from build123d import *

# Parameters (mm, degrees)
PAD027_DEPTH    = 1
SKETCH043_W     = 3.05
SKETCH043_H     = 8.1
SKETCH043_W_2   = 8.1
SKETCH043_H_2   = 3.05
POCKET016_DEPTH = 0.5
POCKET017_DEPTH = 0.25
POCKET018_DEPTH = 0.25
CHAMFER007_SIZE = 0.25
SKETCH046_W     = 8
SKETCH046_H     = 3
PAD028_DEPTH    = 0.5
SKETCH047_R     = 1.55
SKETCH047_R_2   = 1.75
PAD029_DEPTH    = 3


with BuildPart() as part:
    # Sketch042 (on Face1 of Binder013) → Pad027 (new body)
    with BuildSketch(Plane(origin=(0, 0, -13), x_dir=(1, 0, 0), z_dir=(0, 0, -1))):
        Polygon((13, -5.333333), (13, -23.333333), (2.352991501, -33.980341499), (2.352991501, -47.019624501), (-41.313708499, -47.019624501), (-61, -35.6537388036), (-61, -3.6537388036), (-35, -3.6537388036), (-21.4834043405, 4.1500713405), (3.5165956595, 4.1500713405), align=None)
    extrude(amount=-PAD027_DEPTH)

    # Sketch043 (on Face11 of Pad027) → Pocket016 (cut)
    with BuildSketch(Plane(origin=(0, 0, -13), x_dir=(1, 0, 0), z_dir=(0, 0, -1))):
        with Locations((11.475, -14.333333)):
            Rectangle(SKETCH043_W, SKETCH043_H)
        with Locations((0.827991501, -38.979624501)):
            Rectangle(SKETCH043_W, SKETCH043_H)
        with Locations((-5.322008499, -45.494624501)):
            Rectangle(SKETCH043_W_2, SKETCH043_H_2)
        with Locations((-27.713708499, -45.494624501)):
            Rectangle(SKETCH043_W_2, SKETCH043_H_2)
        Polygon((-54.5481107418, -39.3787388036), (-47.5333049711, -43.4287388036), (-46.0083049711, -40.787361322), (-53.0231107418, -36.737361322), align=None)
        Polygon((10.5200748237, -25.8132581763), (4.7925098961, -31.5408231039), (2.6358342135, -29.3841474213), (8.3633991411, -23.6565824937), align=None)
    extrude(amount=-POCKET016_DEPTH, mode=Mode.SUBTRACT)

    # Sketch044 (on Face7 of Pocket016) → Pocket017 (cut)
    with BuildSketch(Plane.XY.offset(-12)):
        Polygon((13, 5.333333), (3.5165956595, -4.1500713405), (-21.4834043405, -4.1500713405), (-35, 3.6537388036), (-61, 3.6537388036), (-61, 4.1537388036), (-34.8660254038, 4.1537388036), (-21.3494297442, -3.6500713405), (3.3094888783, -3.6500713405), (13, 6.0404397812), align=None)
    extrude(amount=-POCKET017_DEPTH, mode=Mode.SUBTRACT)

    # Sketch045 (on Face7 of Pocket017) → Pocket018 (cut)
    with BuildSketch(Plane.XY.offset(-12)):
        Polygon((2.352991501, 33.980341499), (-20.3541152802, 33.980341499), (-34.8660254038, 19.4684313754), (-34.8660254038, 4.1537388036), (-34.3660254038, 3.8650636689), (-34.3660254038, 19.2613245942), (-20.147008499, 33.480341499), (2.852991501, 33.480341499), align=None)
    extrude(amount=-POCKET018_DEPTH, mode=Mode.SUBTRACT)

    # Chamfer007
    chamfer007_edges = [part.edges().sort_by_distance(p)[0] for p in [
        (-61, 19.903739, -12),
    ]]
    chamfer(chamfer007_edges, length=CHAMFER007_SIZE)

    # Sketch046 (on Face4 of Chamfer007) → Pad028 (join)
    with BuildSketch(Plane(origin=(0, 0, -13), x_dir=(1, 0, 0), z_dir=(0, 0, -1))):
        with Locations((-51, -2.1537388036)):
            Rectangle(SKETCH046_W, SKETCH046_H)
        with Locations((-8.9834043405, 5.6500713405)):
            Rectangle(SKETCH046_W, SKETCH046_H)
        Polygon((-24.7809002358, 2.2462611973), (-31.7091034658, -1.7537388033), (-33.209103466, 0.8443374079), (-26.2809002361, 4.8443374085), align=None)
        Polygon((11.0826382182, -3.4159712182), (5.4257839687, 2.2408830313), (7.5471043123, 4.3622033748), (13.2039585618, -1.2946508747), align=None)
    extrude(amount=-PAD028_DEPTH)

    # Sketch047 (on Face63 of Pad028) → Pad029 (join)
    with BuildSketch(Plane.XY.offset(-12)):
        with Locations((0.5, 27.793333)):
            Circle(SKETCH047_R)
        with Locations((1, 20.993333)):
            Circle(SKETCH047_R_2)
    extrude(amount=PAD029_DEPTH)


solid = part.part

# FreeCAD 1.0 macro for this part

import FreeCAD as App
import Part
import Sketcher
from FreeCAD import Vector
Q = App.Units.Quantity


def edges_at(feature, points):
    """Names of the edges that pass closest to the given points."""
    edges = feature.Shape.Edges
    near = lambda p: min(range(len(edges)), key=lambda i: edges[i].distToShape(Part.Vertex(*p))[0])
    return sorted({f"Edge{near(p) + 1}" for p in points})


def add_polygon(sketch, points):
    """Adds a closed chain of lines whose ends are joined by coincident constraints."""
    first, n = sketch.GeometryCount, len(points)
    for a, b in zip(points, points[1:] + points[:1]):
        sketch.addGeometry(Part.LineSegment(App.Vector(*a, 0), App.Vector(*b, 0)), False)
    for i in range(n):
        sketch.addConstraint(Sketcher.Constraint("Coincident", first + i, 2, first + (i + 1) % n, 1))

doc = App.newDocument("Part")
body = doc.addObject("PartDesign::Body", "Body")

# Sketch on XY plane
sketch1 = body.newObject("Sketcher::SketchObject", "Sketch")
sketch1.AttachmentSupport = (doc.getObject("XY_Plane"), [""])
sketch1.MapMode = "FlatFace"
sketch1.AttachmentOffset = App.Placement(Vector(0, 0, -13), App.Rotation())
add_polygon(sketch1, [(13, 23.333333), (13, 5.333333), (3.516596, -4.150071), (-21.483404, -4.150071), (-35, 3.653739), (-61, 3.653739), (-61, 35.653739), (-41.313708, 47.019625), (2.352992, 47.019625), (2.352992, 33.980341)])  # lines 0-9
sketch1.addConstraint([
    Sketcher.Constraint("Vertical", 0),
    Sketcher.Constraint("Horizontal", 2),
    Sketcher.Constraint("Horizontal", 4),
    Sketcher.Constraint("Vertical", 5),
    Sketcher.Constraint("Horizontal", 7),
    Sketcher.Constraint("Vertical", 8),
    Sketcher.Constraint("Perpendicular", 1, 9),
    Sketcher.Constraint("DistanceX", 2, 2, 2, 1, Q("25 mm")),
    Sketcher.Constraint("DistanceX", 4, 2, 4, 1, Q("26 mm")),
    Sketcher.Constraint("DistanceY", 0, 2, 0, 1, Q("18 mm")),
    Sketcher.Constraint("DistanceY", 5, 1, 5, 2, Q("32 mm")),
    Sketcher.Constraint("Angle", 1, Q("-135 deg")),
    Sketcher.Constraint("Angle", 3, Q("150 deg")),
    Sketcher.Constraint("Angle", 6, Q("30 deg")),
    Sketcher.Constraint("DistanceX", -1, 1, 0, 2, Q("13 mm")),
    Sketcher.Constraint("DistanceX", 3, 2, -1, 1, Q("35 mm")),
    Sketcher.Constraint("DistanceX", 7, 1, 7, 2, Q("43.6667 mm")),
    Sketcher.Constraint("Distance", 1, Q("13.411559 mm")),
    Sketcher.Constraint("Distance", 6, Q("22.731771 mm")),
    Sketcher.Constraint("DistanceY", 1, 2, -1, 1, Q("4.150071 mm")),
])
pad1 = body.newObject("PartDesign::Pad", "Pad")
pad1.Profile = sketch1
pad1.Length = 1

# Sketch on XY plane
sketch2 = body.newObject("Sketcher::SketchObject", "Sketch001")
sketch2.AttachmentSupport = (doc.getObject("XY_Plane"), [""])
sketch2.MapMode = "FlatFace"
sketch2.AttachmentOffset = App.Placement(Vector(0, 0, -13), App.Rotation())
add_polygon(sketch2, [(9.95, 10.283333), (9.95, 18.383333), (13, 18.383333), (13, 10.283333)])  # lines 0-3
add_polygon(sketch2, [(-0.697008, 34.929625), (-0.697008, 43.029625), (2.352992, 43.029625), (2.352992, 34.929625)])  # lines 4-7
add_polygon(sketch2, [(-9.372008, 43.969625), (-9.372008, 47.019625), (-1.272008, 47.019625), (-1.272008, 43.969625)])  # lines 8-11
add_polygon(sketch2, [(-31.763708, 43.969625), (-31.763708, 47.019625), (-23.663708, 47.019625), (-23.663708, 43.969625)])  # lines 12-15
add_polygon(sketch2, [(-54.548111, 39.378739), (-47.533305, 43.428739), (-46.008305, 40.787361), (-53.023111, 36.737361)])  # lines 16-19
add_polygon(sketch2, [(4.79251, 31.540823), (10.520075, 25.813258), (8.363399, 23.656582), (2.635834, 29.384147)])  # lines 20-23
sketch2.addConstraint([
    Sketcher.Constraint("Vertical", 0),
    Sketcher.Constraint("Horizontal", 1),
    Sketcher.Constraint("Vertical", 2),
    Sketcher.Constraint("Horizontal", 3),
    Sketcher.Constraint("Vertical", 4),
    Sketcher.Constraint("Horizontal", 5),
    Sketcher.Constraint("Vertical", 6),
    Sketcher.Constraint("Horizontal", 7),
    Sketcher.Constraint("Vertical", 8),
    Sketcher.Constraint("Horizontal", 9),
    Sketcher.Constraint("Vertical", 10),
    Sketcher.Constraint("Horizontal", 11),
    Sketcher.Constraint("Vertical", 12),
    Sketcher.Constraint("Horizontal", 13),
    Sketcher.Constraint("Vertical", 14),
    Sketcher.Constraint("Horizontal", 15),
    Sketcher.Constraint("Perpendicular", 16, 17),
    Sketcher.Constraint("Perpendicular", 17, 18),
    Sketcher.Constraint("Perpendicular", 18, 19),
    Sketcher.Constraint("Perpendicular", 20, 21),
    Sketcher.Constraint("Perpendicular", 21, 22),
    Sketcher.Constraint("Perpendicular", 22, 23),
    Sketcher.Constraint("Horizontal", 9, 2, 12, 2),
    Sketcher.Constraint("Horizontal", 11, 2, 14, 2),
    Sketcher.Constraint("Equal", 3, 5),
    Sketcher.Constraint("Equal", 11, 13),
    Sketcher.Constraint("Equal", 15, 0),
    Sketcher.Constraint("Equal", 2, 4),
    Sketcher.Constraint("Equal", 7, 8),
    Sketcher.Constraint("Equal", 18, 20),
    Sketcher.Constraint("Equal", 19, 21),
    Sketcher.Constraint("Angle", 16, Q("30 deg")),
    Sketcher.Constraint("Angle", 20, Q("-45 deg")),
    Sketcher.Constraint("DistanceX", 9, 1, 9, 2, Q("8.1 mm")),
    Sketcher.Constraint("DistanceX", -1, 1, 1, 2, Q("13 mm")),
    Sketcher.Constraint("Distance", 16, Q("8.1 mm")),
    Sketcher.Constraint("DistanceX", 1, 1, 1, 2, Q("3.05 mm")),
    Sketcher.Constraint("Distance", 17, Q("3.05 mm")),
    Sketcher.Constraint("DistanceY", 4, 2, 8, 2, Q("3.99 mm")),
    Sketcher.Constraint("DistanceX", 8, 2, 4, 2, Q("8.675 mm")),
    Sketcher.Constraint("DistanceX", -1, 1, 21, 2, Q("8.363399 mm")),
    Sketcher.Constraint("DistanceX", 12, 2, 8, 2, Q("22.3917 mm")),
    Sketcher.Constraint("DistanceY", 23, 2, 6, 2, Q("3.388801 mm")),
    Sketcher.Constraint("DistanceX", 4, 2, -1, 1, Q("0.697008 mm")),
    Sketcher.Constraint("DistanceY", -1, 1, 16, 2, Q("43.428739 mm")),
    Sketcher.Constraint("DistanceX", 18, 2, -1, 1, Q("53.023111 mm")),
    Sketcher.Constraint("DistanceY", -1, 1, 20, 2, Q("25.813258 mm")),
    Sketcher.Constraint("DistanceY", 0, 2, 4, 2, Q("24.646292 mm")),
])
pocket1 = body.newObject("PartDesign::Pocket", "Pocket")
pocket1.Profile = sketch2
pocket1.Length = 0.5
pocket1.Reversed = True

# Sketch on XY plane
sketch3 = body.newObject("Sketcher::SketchObject", "Sketch002")
sketch3.AttachmentSupport = (doc.getObject("XY_Plane"), [""])
sketch3.MapMode = "FlatFace"
sketch3.AttachmentOffset = App.Placement(Vector(0, 0, -12), App.Rotation())
add_polygon(sketch3, [(3.516596, -4.150071), (13, 5.333333), (13, 6.04044), (3.309489, -3.650071), (-21.34943, -3.650071), (-34.866025, 4.153739), (-61, 4.153739), (-61, 3.653739), (-35, 3.653739), (-21.483404, -4.150071)])  # lines 0-9
sketch3.addConstraint([
    Sketcher.Constraint("Vertical", 1),
    Sketcher.Constraint("Horizontal", 3),
    Sketcher.Constraint("Horizontal", 5),
    Sketcher.Constraint("Vertical", 6),
    Sketcher.Constraint("Horizontal", 7),
    Sketcher.Constraint("Horizontal", 9),
    Sketcher.Constraint("Parallel", 0, 2),
    Sketcher.Constraint("Parallel", 4, 8),
    Sketcher.Constraint("Equal", 4, 8),
    Sketcher.Constraint("DistanceX", 7, 1, 7, 2, Q("26 mm")),
    Sketcher.Constraint("DistanceX", 9, 1, 9, 2, Q("25 mm")),
    Sketcher.Constraint("Angle", 0, Q("45 deg")),
    Sketcher.Constraint("Angle", 4, Q("150 deg")),
    Sketcher.Constraint("DistanceY", 6, 2, 6, 1, Q("0.5 mm")),
    Sketcher.Constraint("DistanceX", -1, 1, 0, 2, Q("13 mm")),
    Sketcher.Constraint("DistanceX", 5, 2, -1, 1, Q("61 mm")),
    Sketcher.Constraint("DistanceX", 3, 2, 3, 1, Q("24.658919 mm")),
    Sketcher.Constraint("DistanceY", 4, 2, 1, 2, Q("1.886701 mm")),
    Sketcher.Constraint("Distance", 0, Q("13.411559 mm")),
    Sketcher.Constraint("DistanceY", -1, 1, 1, 2, Q("6.04044 mm")),
])
pocket2 = body.newObject("PartDesign::Pocket", "Pocket001")
pocket2.Profile = sketch3
pocket2.Length = 0.25

# Sketch on XY plane
sketch4 = body.newObject("Sketcher::SketchObject", "Sketch003")
sketch4.AttachmentSupport = (doc.getObject("XY_Plane"), [""])
sketch4.MapMode = "FlatFace"
sketch4.AttachmentOffset = App.Placement(Vector(0, 0, -12), App.Rotation())
add_polygon(sketch4, [(2.352992, 33.980341), (-20.354115, 33.980341), (-34.866025, 19.468431), (-34.866025, 4.153739), (-34.366025, 3.865064), (-34.366025, 19.261325), (-20.147008, 33.480341), (2.852992, 33.480341)])  # lines 0-7
sketch4.addConstraint([
    Sketcher.Constraint("Horizontal", 0),
    Sketcher.Constraint("Vertical", 2),
    Sketcher.Constraint("Vertical", 4),
    Sketcher.Constraint("Horizontal", 6),
    Sketcher.Constraint("Parallel", 1, 5),
    Sketcher.Constraint("Perpendicular", 5, 7),
    Sketcher.Constraint("DistanceX", 6, 1, 6, 2, Q("23 mm")),
    Sketcher.Constraint("Angle", 1, Q("-135 deg")),
    Sketcher.Constraint("Angle", 3, Q("-30 deg")),
    Sketcher.Constraint("DistanceX", 2, 2, 3, 2, Q("0.5 mm")),
    Sketcher.Constraint("DistanceY", 5, 2, 0, 2, Q("0.5 mm")),
    Sketcher.Constraint("DistanceY", 4, 1, 4, 2, Q("15.396261 mm")),
    Sketcher.Constraint("Distance", 1, Q("20.52294 mm")),
    Sketcher.Constraint("DistanceX", 0, 2, 0, 1, Q("22.707107 mm")),
    Sketcher.Constraint("DistanceY", -1, 1, 0, 2, Q("33.980341 mm")),
    Sketcher.Constraint("DistanceX", 5, 2, -1, 1, Q("20.147008 mm")),
])
pocket3 = body.newObject("PartDesign::Pocket", "Pocket002")
pocket3.Profile = sketch4
pocket3.Length = 0.25
doc.recompute()

chamfer = body.newObject("PartDesign::Chamfer", "Chamfer")
chamfer.Base = (pocket3, edges_at(pocket3, [(-61, 19.904, -12)]))
chamfer.Size = 0.25

# Sketch on XY plane
sketch5 = body.newObject("Sketcher::SketchObject", "Sketch004")
sketch5.AttachmentSupport = (doc.getObject("XY_Plane"), [""])
sketch5.MapMode = "FlatFace"
sketch5.AttachmentOffset = App.Placement(Vector(0, 0, -13), App.Rotation())
add_polygon(sketch5, [(-55, 0.653739), (-55, 3.653739), (-47, 3.653739), (-47, 0.653739)])  # lines 0-3
add_polygon(sketch5, [(-12.983404, -7.150071), (-12.983404, -4.150071), (-4.983404, -4.150071), (-4.983404, -7.150071)])  # lines 4-7
add_polygon(sketch5, [(-31.709103, 1.753739), (-24.7809, -2.246261), (-26.2809, -4.844337), (-33.209103, -0.844337)])  # lines 8-11
add_polygon(sketch5, [(5.425784, -2.240883), (11.082638, 3.415971), (13.203959, 1.294651), (7.547104, -4.362203)])  # lines 12-15
sketch5.addConstraint([
    Sketcher.Constraint("Vertical", 0),
    Sketcher.Constraint("Horizontal", 1),
    Sketcher.Constraint("Vertical", 2),
    Sketcher.Constraint("Horizontal", 3),
    Sketcher.Constraint("Vertical", 4),
    Sketcher.Constraint("Horizontal", 5),
    Sketcher.Constraint("Vertical", 6),
    Sketcher.Constraint("Horizontal", 7),
    Sketcher.Constraint("Perpendicular", 8, 9),
    Sketcher.Constraint("Perpendicular", 9, 10),
    Sketcher.Constraint("Perpendicular", 10, 11),
    Sketcher.Constraint("Perpendicular", 12, 13),
    Sketcher.Constraint("Perpendicular", 13, 14),
    Sketcher.Constraint("Perpendicular", 14, 15),
    Sketcher.Constraint("Equal", 3, 5),
    Sketcher.Constraint("Equal", 2, 4),
    Sketcher.Constraint("Equal", 10, 12),
    Sketcher.Constraint("Equal", 11, 13),
    Sketcher.Constraint("DistanceX", 1, 1, 1, 2, Q("8 mm")),
    Sketcher.Constraint("DistanceY", 0, 1, 0, 2, Q("3 mm")),
    Sketcher.Constraint("Angle", 8, Q("-30 deg")),
    Sketcher.Constraint("Angle", 12, Q("45 deg")),
    Sketcher.Constraint("Distance", 8, Q("8 mm")),
    Sketcher.Constraint("Distance", 9, Q("3 mm")),
    Sketcher.Constraint("DistanceX", 0, 2, -1, 1, Q("55 mm")),
    Sketcher.Constraint("DistanceY", 8, 2, 2, 2, Q("2.9 mm")),
    Sketcher.Constraint("DistanceX", 8, 2, -1, 1, Q("24.7809 mm")),
    Sketcher.Constraint("DistanceX", 10, 2, 4, 2, Q("20.225699 mm")),
    Sketcher.Constraint("DistanceY", -1, 1, 0, 2, Q("3.653739 mm")),
    Sketcher.Constraint("DistanceY", 4, 2, -1, 1, Q("4.150071 mm")),
    Sketcher.Constraint("DistanceX", -1, 1, 12, 2, Q("11.082638 mm")),
    Sketcher.Constraint("DistanceY", -1, 1, 12, 2, Q("3.415971 mm")),
])
pad2 = body.newObject("PartDesign::Pad", "Pad001")
pad2.Profile = sketch5
pad2.Length = 0.5

# Sketch on XY plane
sketch6 = body.newObject("Sketcher::SketchObject", "Sketch005")
sketch6.AttachmentSupport = (doc.getObject("XY_Plane"), [""])
sketch6.MapMode = "FlatFace"
sketch6.AttachmentOffset = App.Placement(Vector(0, 0, -12), App.Rotation())
sketch6.addGeometry([
    Part.Circle(Vector(0.5, 27.793333, 0), Vector(0, 0, 1), 1.55),
    Part.Circle(Vector(1, 20.993333, 0), Vector(0, 0, 1), 1.75),
], False)
sketch6.addConstraint([
    Sketcher.Constraint("Diameter", 0, Q("3.1 mm")),
    Sketcher.Constraint("Diameter", 1, Q("3.5 mm")),
    Sketcher.Constraint("DistanceX", -1, 1, 1, 3, Q("1 mm")),
    Sketcher.Constraint("DistanceX", -1, 1, 0, 3, Q("0.5 mm")),
    Sketcher.Constraint("DistanceY", 1, 3, 0, 3, Q("6.8 mm")),
    Sketcher.Constraint("DistanceY", -1, 1, 0, 3, Q("27.793333 mm")),
])
pad3 = body.newObject("PartDesign::Pad", "Pad002")
pad3.Profile = sketch6
pad3.Length = 3

doc.recompute()
